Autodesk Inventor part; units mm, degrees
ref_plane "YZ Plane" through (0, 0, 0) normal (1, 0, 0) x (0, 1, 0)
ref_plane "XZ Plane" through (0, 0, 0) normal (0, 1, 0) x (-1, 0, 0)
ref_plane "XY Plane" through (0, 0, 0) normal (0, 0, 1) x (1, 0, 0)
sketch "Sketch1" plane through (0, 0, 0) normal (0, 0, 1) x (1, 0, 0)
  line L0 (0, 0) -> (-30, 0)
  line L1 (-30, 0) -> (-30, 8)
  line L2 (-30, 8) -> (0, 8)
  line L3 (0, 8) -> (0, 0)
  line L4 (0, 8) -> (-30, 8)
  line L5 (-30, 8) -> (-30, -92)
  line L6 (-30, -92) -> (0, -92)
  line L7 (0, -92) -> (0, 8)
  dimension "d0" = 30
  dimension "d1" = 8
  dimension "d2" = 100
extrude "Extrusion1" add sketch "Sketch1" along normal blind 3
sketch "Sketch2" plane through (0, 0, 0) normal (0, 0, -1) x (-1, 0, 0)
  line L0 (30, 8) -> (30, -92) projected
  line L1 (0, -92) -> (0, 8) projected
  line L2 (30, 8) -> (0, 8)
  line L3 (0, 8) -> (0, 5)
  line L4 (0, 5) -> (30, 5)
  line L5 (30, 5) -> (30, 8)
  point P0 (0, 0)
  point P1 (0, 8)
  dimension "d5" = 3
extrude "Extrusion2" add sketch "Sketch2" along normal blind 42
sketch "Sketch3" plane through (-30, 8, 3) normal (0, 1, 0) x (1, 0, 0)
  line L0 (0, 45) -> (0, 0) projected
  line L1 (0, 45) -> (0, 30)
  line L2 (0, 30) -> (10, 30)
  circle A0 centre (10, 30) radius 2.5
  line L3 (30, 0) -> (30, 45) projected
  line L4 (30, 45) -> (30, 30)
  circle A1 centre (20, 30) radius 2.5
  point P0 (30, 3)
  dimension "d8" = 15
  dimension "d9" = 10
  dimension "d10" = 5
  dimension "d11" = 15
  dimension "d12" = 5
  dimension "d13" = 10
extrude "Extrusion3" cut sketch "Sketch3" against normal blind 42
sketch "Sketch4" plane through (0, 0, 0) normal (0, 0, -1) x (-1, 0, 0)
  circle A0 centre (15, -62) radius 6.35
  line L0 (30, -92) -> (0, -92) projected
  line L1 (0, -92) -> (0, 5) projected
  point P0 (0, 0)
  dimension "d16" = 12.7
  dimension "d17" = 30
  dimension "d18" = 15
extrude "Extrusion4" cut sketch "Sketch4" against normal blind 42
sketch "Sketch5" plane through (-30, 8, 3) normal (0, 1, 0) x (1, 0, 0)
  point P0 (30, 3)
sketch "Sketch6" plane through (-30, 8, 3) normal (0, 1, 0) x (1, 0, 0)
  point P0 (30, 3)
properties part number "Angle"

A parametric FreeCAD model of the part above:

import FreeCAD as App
import Part
import Sketcher
from FreeCAD import Vector


def add_polygon(sketch, points):
    """Adds a closed chain of lines whose ends are joined by coincident constraints."""
    first, n = sketch.GeometryCount, len(points)
    for a, b in zip(points, points[1:] + points[:1]):
        sketch.addGeometry(Part.LineSegment(App.Vector(*a, 0), App.Vector(*b, 0)), False)
    for i in range(n):
        sketch.addConstraint(Sketcher.Constraint("Coincident", first + i, 2, first + (i + 1) % n, 1))

doc = App.newDocument("Part")
body = doc.addObject("PartDesign::Body", "Body")

sketch1 = body.newObject("Sketcher::SketchObject", "Sketch")
sketch1.AttachmentSupport = (doc.getObject("XY_Plane"), [""])
sketch1.MapMode = "FlatFace"
add_polygon(sketch1, [(0, -92), (0, 8), (-30, 8), (-30, -92)])
sketch1.addConstraint(Sketcher.Constraint("Vertical", 0))
sketch1.addConstraint(Sketcher.Constraint("Horizontal", 1))
sketch1.addConstraint(Sketcher.Constraint("Vertical", 2))
sketch1.addConstraint(Sketcher.Constraint("Horizontal", 3))
sketch1.addConstraint(Sketcher.Constraint("PointOnObject", 0, 2, -2))
sketch1.addConstraint(Sketcher.Constraint("DistanceX", 1, 2, 1, 1, 30.0))
sketch1.addConstraint(Sketcher.Constraint("DistanceY", 0, 1, 0, 2, 100.0))
sketch1.addConstraint(Sketcher.Constraint("DistanceY", -1, 1, 0, 2, 8.0))
pad1 = body.newObject("PartDesign::Pad", "Pad")
pad1.Profile = sketch1
pad1.Length = 3

sketch2 = body.newObject("Sketcher::SketchObject", "Sketch001")
sketch2.AttachmentSupport = (doc.getObject("XY_Plane"), [""])
sketch2.MapMode = "FlatFace"
add_polygon(sketch2, [(-30, 5), (-30, 8), (0, 8), (0, 5)])
sketch2.addConstraint(Sketcher.Constraint("Vertical", 0))
sketch2.addConstraint(Sketcher.Constraint("Horizontal", 1))
sketch2.addConstraint(Sketcher.Constraint("Vertical", 2))
sketch2.addConstraint(Sketcher.Constraint("Horizontal", 3))
sketch2.addConstraint(Sketcher.Constraint("PointOnObject", 1, 2, -2))
sketch2.addConstraint(Sketcher.Constraint("DistanceY", 0, 1, 0, 2, 3.0))
sketch2.addConstraint(Sketcher.Constraint("DistanceX", 1, 1, 1, 2, 30.0))
sketch2.addConstraint(Sketcher.Constraint("DistanceY", -1, 1, 0, 2, 8.0))
pad2 = body.newObject("PartDesign::Pad", "Pad001")
pad2.Profile = sketch2
pad2.Length = 42
pad2.Reversed = True

sketch3 = body.newObject("Sketcher::SketchObject", "Sketch002")
sketch3.AttachmentSupport = (doc.getObject("XZ_Plane"), [""])
sketch3.MapMode = "FlatFace"
sketch3.AttachmentOffset = App.Placement(Vector(0, 0, -8), App.Rotation())
sketch3.addGeometry(Part.Circle(Vector(-20, -27, 0), Vector(0, 0, 1), 2.5), False)
sketch3.addGeometry(Part.Circle(Vector(-10, -27, 0), Vector(0, 0, 1), 2.5), False)
sketch3.addConstraint(Sketcher.Constraint("Equal", 0, 1))
sketch3.addConstraint(Sketcher.Constraint("Horizontal", 0, 3, 1, 3))
sketch3.addConstraint(Sketcher.Constraint("Diameter", 0, 5.0))
sketch3.addConstraint(Sketcher.Constraint("DistanceX", 1, 3, -1, 1, 10.0))
sketch3.addConstraint(Sketcher.Constraint("DistanceX", 0, 3, 1, 3, 10.0))
sketch3.addConstraint(Sketcher.Constraint("DistanceY", 0, 3, -1, 1, 27.0))
pocket1 = body.newObject("PartDesign::Pocket", "Pocket")
pocket1.Profile = sketch3
pocket1.Length = 42
pocket1.Reversed = True

sketch4 = body.newObject("Sketcher::SketchObject", "Sketch003")
sketch4.AttachmentSupport = (doc.getObject("XY_Plane"), [""])
sketch4.MapMode = "FlatFace"
sketch4.addGeometry(Part.Circle(Vector(-15, -62, 0), Vector(0, 0, 1), 6), False)
sketch4.addConstraint(Sketcher.Constraint("Diameter", 0, 12.7))
sketch4.addConstraint(Sketcher.Constraint("DistanceX", 0, 3, -1, 1, 15.0))
sketch4.addConstraint(Sketcher.Constraint("DistanceY", 0, 3, -1, 1, 62.0))
pocket2 = body.newObject("PartDesign::Pocket", "Pocket001")
pocket2.Profile = sketch4
pocket2.Length = 42
pocket2.Reversed = True

doc.recompute()
